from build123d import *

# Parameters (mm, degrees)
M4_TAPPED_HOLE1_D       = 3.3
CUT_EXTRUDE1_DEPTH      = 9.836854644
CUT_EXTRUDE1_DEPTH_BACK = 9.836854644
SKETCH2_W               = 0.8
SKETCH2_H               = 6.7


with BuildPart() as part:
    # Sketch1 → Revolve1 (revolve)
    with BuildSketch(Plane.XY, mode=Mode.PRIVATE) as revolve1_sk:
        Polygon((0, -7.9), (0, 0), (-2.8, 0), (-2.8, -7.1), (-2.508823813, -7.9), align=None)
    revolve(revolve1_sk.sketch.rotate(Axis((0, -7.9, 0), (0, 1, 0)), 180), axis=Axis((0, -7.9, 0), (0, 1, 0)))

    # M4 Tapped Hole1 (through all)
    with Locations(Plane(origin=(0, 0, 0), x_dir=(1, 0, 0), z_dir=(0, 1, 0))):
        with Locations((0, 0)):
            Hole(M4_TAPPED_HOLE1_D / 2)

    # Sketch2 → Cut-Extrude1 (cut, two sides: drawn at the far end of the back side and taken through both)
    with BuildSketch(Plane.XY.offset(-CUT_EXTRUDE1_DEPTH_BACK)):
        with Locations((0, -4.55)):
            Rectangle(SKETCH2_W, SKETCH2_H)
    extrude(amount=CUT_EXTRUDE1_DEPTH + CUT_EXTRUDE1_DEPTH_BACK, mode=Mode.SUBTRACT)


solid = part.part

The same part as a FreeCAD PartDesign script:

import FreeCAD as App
import Part
import Sketcher

V = App.Vector
Q = App.Units.Quantity

doc = App.newDocument("Part")
body = doc.addObject("PartDesign::Body", "Body")

# Sketch on XY plane
sketch1 = body.newObject("Sketcher::SketchObject", "Sketch")
sketch1.AttachmentSupport = (doc.getObject("XY_Plane"), [""])
sketch1.MapMode = "FlatFace"
sketch1.addGeometry([
    Part.LineSegment(V(0, -7.9, 0), V(0, 0, 0)),  # 0
    Part.LineSegment(V(0, 0, 0), V(-2.8, 0, 0)),  # 1
    Part.LineSegment(V(-2.8, 0, 0), V(-2.8, -7.1, 0)),  # 2
    Part.LineSegment(V(-2.8, -7.1, 0), V(-2.5, -7.9, 0)),  # 3
    Part.LineSegment(V(-2.5, -7.9, 0), V(0, -7.9, 0)),  # 4
], False)
sketch1.addConstraint([
    Sketcher.Constraint("Coincident", 0, 2, 1, 1),
    Sketcher.Constraint("Coincident", 1, 2, 2, 1),
    Sketcher.Constraint("Coincident", 2, 2, 3, 1),
    Sketcher.Constraint("Coincident", 3, 2, 4, 1),
    Sketcher.Constraint("Coincident", 4, 2, 0, 1),
    Sketcher.Constraint("Vertical", 0),
    Sketcher.Constraint("Horizontal", 1),
    Sketcher.Constraint("Vertical", 2),
    Sketcher.Constraint("Horizontal", 4),
    Sketcher.Constraint("Coincident", 0, 2, -1, 1),
    Sketcher.Constraint("Angle", 3, Q("-70 deg")),
    Sketcher.Constraint("DistanceX", 1, 2, 1, 1, Q("2.8 mm")),
    Sketcher.Constraint("DistanceY", 0, 1, 0, 2, Q("7.9 mm")),
    Sketcher.Constraint("DistanceY", 2, 2, 2, 1, Q("7.1 mm")),
])
revolution = body.newObject("PartDesign::Revolution", "Revolution")
revolution.Profile = sketch1
revolution.ReferenceAxis = (sketch1, ["V_Axis"])
revolution.Angle = 360

# Sketch on XZ plane
sketch2 = body.newObject("Sketcher::SketchObject", "Sketch001")
sketch2.AttachmentSupport = (doc.getObject("XZ_Plane"), [""])
sketch2.MapMode = "FlatFace"
sketch2.addGeometry(Part.Circle(V(0, 0, 0), V(0, 0, 1), 1.6), False)
sketch2.addConstraint([
    Sketcher.Constraint("Coincident", 0, 3, -1, 1),
    Sketcher.Constraint("Diameter", 0, Q("3.3 mm")),
])
doc.recompute()
hole = body.newObject("PartDesign::Hole", "Hole")
hole.Profile = sketch2
hole.ThreadType = "None"
hole.Diameter = 3.3
hole.DepthType = "ThroughAll"
hole.Reversed = True

# Sketch on XY plane
sketch3 = body.newObject("Sketcher::SketchObject", "Sketch002")
sketch3.AttachmentSupport = (doc.getObject("XY_Plane"), [""])
sketch3.MapMode = "FlatFace"
sketch3.addGeometry([
    Part.LineSegment(V(-0.4, -1.2, 0), V(-0.4, -7.9, 0)),
    Part.LineSegment(V(-0.4, -7.9, 0), V(0.4, -7.9, 0)),
    Part.LineSegment(V(0.4, -7.9, 0), V(0.4, -1.2, 0)),
    Part.LineSegment(V(0.4, -1.2, 0), V(-0.4, -1.2, 0)),
], False)
sketch3.addConstraint([
    Sketcher.Constraint("Coincident", 0, 2, 1, 1),
    Sketcher.Constraint("Coincident", 1, 2, 2, 1),
    Sketcher.Constraint("Coincident", 2, 2, 3, 1),
    Sketcher.Constraint("Coincident", 3, 2, 0, 1),
    Sketcher.Constraint("Vertical", 0),
    Sketcher.Constraint("Horizontal", 1),
    Sketcher.Constraint("Vertical", 2),
    Sketcher.Constraint("Horizontal", 3),
    Sketcher.Constraint("DistanceX", 1, 1, 1, 2, Q("0.8 mm")),
    Sketcher.Constraint("DistanceY", 0, 2, 0, 1, Q("6.7 mm")),
    Sketcher.Constraint("DistanceX", 0, 2, -1, 1, Q("0.4 mm")),
    Sketcher.Constraint("DistanceY", 0, 2, -1, 1, Q("7.9 mm")),
])
pocket1 = body.newObject("PartDesign::Pocket", "Pocket")
pocket1.Profile = sketch3
pocket1.Type = "ThroughAll"
pocket1.Midplane = True

doc.recompute()
